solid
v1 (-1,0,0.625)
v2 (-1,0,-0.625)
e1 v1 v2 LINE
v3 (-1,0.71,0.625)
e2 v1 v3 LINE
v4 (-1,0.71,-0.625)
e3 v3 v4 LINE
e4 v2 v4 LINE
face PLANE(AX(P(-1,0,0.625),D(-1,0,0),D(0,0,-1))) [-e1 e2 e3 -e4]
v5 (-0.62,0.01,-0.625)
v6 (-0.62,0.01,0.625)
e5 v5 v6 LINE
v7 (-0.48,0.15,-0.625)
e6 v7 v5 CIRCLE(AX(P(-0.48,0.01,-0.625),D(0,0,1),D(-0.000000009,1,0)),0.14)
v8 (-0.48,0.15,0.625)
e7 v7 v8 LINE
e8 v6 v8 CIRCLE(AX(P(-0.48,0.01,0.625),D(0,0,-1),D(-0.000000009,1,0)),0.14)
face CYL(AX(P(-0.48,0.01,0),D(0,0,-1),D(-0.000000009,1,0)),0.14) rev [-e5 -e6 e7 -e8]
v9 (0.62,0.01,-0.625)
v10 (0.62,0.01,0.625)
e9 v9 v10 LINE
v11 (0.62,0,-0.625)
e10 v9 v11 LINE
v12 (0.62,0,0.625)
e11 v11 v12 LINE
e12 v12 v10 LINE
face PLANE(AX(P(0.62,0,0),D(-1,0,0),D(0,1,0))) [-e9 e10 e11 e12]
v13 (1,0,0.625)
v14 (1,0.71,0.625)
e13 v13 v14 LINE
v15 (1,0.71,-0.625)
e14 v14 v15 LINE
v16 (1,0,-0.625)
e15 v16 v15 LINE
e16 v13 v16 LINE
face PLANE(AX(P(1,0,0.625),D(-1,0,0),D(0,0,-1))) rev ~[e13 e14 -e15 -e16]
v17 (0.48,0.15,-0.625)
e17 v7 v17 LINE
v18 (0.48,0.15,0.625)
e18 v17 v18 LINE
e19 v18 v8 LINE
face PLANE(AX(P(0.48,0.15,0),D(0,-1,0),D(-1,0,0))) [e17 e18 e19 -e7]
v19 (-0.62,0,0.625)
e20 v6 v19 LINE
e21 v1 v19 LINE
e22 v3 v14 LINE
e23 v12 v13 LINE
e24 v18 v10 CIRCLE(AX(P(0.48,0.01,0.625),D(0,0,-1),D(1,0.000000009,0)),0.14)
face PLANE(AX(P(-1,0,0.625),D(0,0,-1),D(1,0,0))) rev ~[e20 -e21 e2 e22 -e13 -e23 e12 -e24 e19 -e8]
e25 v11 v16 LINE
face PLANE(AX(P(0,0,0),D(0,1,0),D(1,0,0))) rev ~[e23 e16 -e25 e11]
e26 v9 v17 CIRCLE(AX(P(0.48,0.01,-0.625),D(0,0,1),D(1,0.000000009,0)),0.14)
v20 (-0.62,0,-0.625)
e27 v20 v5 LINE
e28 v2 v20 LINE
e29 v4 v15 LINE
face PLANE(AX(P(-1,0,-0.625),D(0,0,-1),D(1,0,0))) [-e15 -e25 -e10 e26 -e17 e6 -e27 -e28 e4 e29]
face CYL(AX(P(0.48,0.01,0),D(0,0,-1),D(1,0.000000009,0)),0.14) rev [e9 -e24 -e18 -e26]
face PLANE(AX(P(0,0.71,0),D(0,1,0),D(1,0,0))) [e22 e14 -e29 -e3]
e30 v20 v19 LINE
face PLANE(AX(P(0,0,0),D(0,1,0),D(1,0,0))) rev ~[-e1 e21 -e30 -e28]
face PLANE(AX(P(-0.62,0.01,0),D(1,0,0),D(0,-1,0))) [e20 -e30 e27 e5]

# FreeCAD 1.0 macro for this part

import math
import FreeCAD as App
import Part
import Sketcher

V = App.Vector


def add_polygon(sketch, points):
    """Adds a closed chain of lines whose ends are joined by coincident constraints."""
    first, n = sketch.GeometryCount, len(points)
    for a, b in zip(points, points[1:] + points[:1]):
        sketch.addGeometry(Part.LineSegment(App.Vector(*a, 0), App.Vector(*b, 0)), False)
    for i in range(n):
        sketch.addConstraint(Sketcher.Constraint("Coincident", first + i, 2, first + (i + 1) % n, 1))

doc = App.newDocument("Part")
body = doc.addObject("PartDesign::Body", "Body")

# Sketch on XZ plane
sketch1 = doc.addObject("Sketcher::SketchObject", "Sketch")
body.addObject(sketch1)
sketch1.AttachmentSupport = (doc.XZ_Plane, [""])
sketch1.MapMode = "FlatFace"
add_polygon(sketch1, [(-1, -0.625), (-1, 0.625), (1, 0.625), (1, -0.625)])  # lines 0-3
sketch1.addConstraint([
    Sketcher.Constraint("Vertical", 0),
    Sketcher.Constraint("Horizontal", 1),
    Sketcher.Constraint("Vertical", 2),
    Sketcher.Constraint("Horizontal", 3),
    Sketcher.Constraint("Symmetric", 0, 2, 2, 2, -1, 1),
    Sketcher.Constraint("DistanceX", 1, 1, 1, 2, 2.0),
    Sketcher.Constraint("DistanceY", 0, 1, 0, 2, 1.25),
])
pad1 = doc.addObject("PartDesign::Pad", "Pad")
body.addObject(pad1)
pad1.Profile = sketch1
pad1.Length = 0.71
pad1.Reversed = True

# Sketch on XY plane
sketch2 = doc.addObject("Sketcher::SketchObject", "Sketch001")
body.addObject(sketch2)
sketch2.AttachmentSupport = (doc.XY_Plane, [""])
sketch2.MapMode = "FlatFace"
sketch2.addGeometry([
    Part.LineSegment(V(-0.62, 0, 0), V(0.62, 0, 0)),  # 0
    Part.LineSegment(V(0.62, 0, 0), V(0.62, 0.01, 0)),  # 1
    Part.ArcOfCircle(Part.Circle(V(0.48, 0.01, 0), V(0, 0, 1), 0.14), math.radians(0), math.radians(90)),  # 2
    Part.LineSegment(V(0.48, 0.15, 0), V(-0.48, 0.15, 0)),  # 3
    Part.ArcOfCircle(Part.Circle(V(-0.48, 0.01, 0), V(0, 0, 1), 0.14), math.radians(90), math.radians(180)),  # 4
    Part.LineSegment(V(-0.62, 0.01, 0), V(-0.62, 0, 0)),  # 5
], False)
sketch2.addConstraint([
    Sketcher.Constraint("Coincident", 0, 2, 1, 1),
    Sketcher.Constraint("Tangent", 1, 2, 2, 1),
    Sketcher.Constraint("Tangent", 2, 2, 3, 1),
    Sketcher.Constraint("Tangent", 3, 2, 4, 1),
    Sketcher.Constraint("Tangent", 4, 2, 5, 1),
    Sketcher.Constraint("Coincident", 5, 2, 0, 1),
    Sketcher.Constraint("Horizontal", 0),
    Sketcher.Constraint("Vertical", 1),
    Sketcher.Constraint("Horizontal", 3),
    Sketcher.Constraint("Vertical", 5),
    Sketcher.Constraint("Equal", 2, 4),
    Sketcher.Constraint("Symmetric", 0, 2, 5, 2, -1, 1),
    Sketcher.Constraint("Radius", 2, 0.14),
    Sketcher.Constraint("DistanceX", 0, 1, 0, 2, 1.24),
    Sketcher.Constraint("DistanceY", 1, 1, 1, 2, 0.01),
])
pocket1 = doc.addObject("PartDesign::Pocket", "Pocket")
body.addObject(pocket1)
pocket1.Profile = sketch2
pocket1.Type = "ThroughAll"
pocket1.Midplane = True

doc.recompute()
